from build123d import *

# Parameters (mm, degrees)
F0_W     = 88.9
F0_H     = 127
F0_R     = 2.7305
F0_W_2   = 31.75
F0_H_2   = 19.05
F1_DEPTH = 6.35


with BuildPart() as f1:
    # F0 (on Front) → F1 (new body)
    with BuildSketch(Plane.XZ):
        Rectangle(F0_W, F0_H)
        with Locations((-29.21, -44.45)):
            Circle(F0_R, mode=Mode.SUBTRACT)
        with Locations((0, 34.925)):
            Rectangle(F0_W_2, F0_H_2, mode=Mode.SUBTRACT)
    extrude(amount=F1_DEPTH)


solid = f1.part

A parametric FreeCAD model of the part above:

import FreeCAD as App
import Part
import Sketcher

V = App.Vector
Q = App.Units.Quantity

doc = App.newDocument("Part")
params = doc.addObject("Spreadsheet::Sheet", "Params")
for row, (alias, value) in enumerate([
    ("sketch1_height", "5 in"),
    ("sketch1_diameter", "0.215 in"),
    ("sketch1_width", "3.5 in"),
    ("sketch1_width2", "1.25 in"),
    ("sketch1_height2", "0.75 in"),
    ("pad1_length", "0.25 in"),
], start=1):
    params.set(f"A{row}", alias)
    params.set(f"B{row}", "=" + value)
    params.setAlias(f"B{row}", alias)

body = doc.addObject("PartDesign::Body", "Body")

# Sketch on XZ plane
sketch1 = body.newObject("Sketcher::SketchObject", "Sketch")
sketch1.AttachmentSupport = (doc.getObject("XZ_Plane"), [""])
sketch1.MapMode = "FlatFace"
sketch1.addGeometry([
    Part.LineSegment(V(-44.45, 63.5, 0), V(-44.45, -63.5, 0)),  # 0
    Part.LineSegment(V(-44.45, -63.5, 0), V(44.45, -63.5, 0)),  # 1
    Part.LineSegment(V(44.45, -63.5, 0), V(44.45, 63.5, 0)),  # 2
    Part.LineSegment(V(44.45, 63.5, 0), V(-44.45, 63.5, 0)),  # 3
    Part.Circle(V(-29.21, -44.45, 0), V(0, 0, 1), 2.7305),  # 4
    Part.LineSegment(V(15.875, 25.4, 0), V(-15.875, 25.4, 0)),  # 5
    Part.LineSegment(V(-15.875, 25.4, 0), V(-15.875, 44.45, 0)),  # 6
    Part.LineSegment(V(-15.875, 44.45, 0), V(15.875, 44.45, 0)),  # 7
    Part.LineSegment(V(15.875, 44.45, 0), V(15.875, 25.4, 0)),  # 8
], False)
sketch1.addConstraint([
    Sketcher.Constraint("Coincident", 0, 2, 1, 1),
    Sketcher.Constraint("Coincident", 1, 2, 2, 1),
    Sketcher.Constraint("Coincident", 2, 2, 3, 1),
    Sketcher.Constraint("Coincident", 3, 2, 0, 1),
    Sketcher.Constraint("Coincident", 5, 2, 6, 1),
    Sketcher.Constraint("Coincident", 6, 2, 7, 1),
    Sketcher.Constraint("Coincident", 7, 2, 8, 1),
    Sketcher.Constraint("Coincident", 8, 2, 5, 1),
    Sketcher.Constraint("Vertical", 0),
    Sketcher.Constraint("Horizontal", 1),
    Sketcher.Constraint("Vertical", 2),
    Sketcher.Constraint("Horizontal", 3),
    Sketcher.Constraint("Horizontal", 5),
    Sketcher.Constraint("Vertical", 6),
    Sketcher.Constraint("Horizontal", 7),
    Sketcher.Constraint("Vertical", 8),
    Sketcher.Constraint("Symmetric", 0, 2, 2, 2, -1, 1),
    Sketcher.Constraint("DistanceY", 0, 2, 0, 1, Q("5 in")),
    Sketcher.Constraint("Diameter", 4, Q("0.215 in")),
    Sketcher.Constraint("DistanceX", 1, 1, 1, 2, Q("3.5 in")),
    Sketcher.Constraint("DistanceY", -1, 1, 5, 2, Q("1 in")),
    Sketcher.Constraint("DistanceX", 5, 2, 5, 1, Q("1.25 in")),
    Sketcher.Constraint("DistanceY", 6, 1, 6, 2, Q("0.75 in")),
    Sketcher.Constraint("DistanceX", 0, 2, 4, 3, Q("0.6 in")),
    Sketcher.Constraint("DistanceY", 4, 3, 6, 2, Q("3.5 in")),
    Sketcher.Constraint("DistanceX", 5, 2, -1, 1, Q("0.625 in")),
])
sketch1.setExpression("Constraints[17]", "Params.sketch1_height")
sketch1.setExpression("Constraints[18]", "Params.sketch1_diameter")
sketch1.setExpression("Constraints[19]", "Params.sketch1_width")
sketch1.setExpression("Constraints[21]", "Params.sketch1_width2")
sketch1.setExpression("Constraints[22]", "Params.sketch1_height2")
pad1 = body.newObject("PartDesign::Pad", "Pad")
pad1.Profile = sketch1
pad1.setExpression("Length", "Params.pad1_length")

doc.recompute()
